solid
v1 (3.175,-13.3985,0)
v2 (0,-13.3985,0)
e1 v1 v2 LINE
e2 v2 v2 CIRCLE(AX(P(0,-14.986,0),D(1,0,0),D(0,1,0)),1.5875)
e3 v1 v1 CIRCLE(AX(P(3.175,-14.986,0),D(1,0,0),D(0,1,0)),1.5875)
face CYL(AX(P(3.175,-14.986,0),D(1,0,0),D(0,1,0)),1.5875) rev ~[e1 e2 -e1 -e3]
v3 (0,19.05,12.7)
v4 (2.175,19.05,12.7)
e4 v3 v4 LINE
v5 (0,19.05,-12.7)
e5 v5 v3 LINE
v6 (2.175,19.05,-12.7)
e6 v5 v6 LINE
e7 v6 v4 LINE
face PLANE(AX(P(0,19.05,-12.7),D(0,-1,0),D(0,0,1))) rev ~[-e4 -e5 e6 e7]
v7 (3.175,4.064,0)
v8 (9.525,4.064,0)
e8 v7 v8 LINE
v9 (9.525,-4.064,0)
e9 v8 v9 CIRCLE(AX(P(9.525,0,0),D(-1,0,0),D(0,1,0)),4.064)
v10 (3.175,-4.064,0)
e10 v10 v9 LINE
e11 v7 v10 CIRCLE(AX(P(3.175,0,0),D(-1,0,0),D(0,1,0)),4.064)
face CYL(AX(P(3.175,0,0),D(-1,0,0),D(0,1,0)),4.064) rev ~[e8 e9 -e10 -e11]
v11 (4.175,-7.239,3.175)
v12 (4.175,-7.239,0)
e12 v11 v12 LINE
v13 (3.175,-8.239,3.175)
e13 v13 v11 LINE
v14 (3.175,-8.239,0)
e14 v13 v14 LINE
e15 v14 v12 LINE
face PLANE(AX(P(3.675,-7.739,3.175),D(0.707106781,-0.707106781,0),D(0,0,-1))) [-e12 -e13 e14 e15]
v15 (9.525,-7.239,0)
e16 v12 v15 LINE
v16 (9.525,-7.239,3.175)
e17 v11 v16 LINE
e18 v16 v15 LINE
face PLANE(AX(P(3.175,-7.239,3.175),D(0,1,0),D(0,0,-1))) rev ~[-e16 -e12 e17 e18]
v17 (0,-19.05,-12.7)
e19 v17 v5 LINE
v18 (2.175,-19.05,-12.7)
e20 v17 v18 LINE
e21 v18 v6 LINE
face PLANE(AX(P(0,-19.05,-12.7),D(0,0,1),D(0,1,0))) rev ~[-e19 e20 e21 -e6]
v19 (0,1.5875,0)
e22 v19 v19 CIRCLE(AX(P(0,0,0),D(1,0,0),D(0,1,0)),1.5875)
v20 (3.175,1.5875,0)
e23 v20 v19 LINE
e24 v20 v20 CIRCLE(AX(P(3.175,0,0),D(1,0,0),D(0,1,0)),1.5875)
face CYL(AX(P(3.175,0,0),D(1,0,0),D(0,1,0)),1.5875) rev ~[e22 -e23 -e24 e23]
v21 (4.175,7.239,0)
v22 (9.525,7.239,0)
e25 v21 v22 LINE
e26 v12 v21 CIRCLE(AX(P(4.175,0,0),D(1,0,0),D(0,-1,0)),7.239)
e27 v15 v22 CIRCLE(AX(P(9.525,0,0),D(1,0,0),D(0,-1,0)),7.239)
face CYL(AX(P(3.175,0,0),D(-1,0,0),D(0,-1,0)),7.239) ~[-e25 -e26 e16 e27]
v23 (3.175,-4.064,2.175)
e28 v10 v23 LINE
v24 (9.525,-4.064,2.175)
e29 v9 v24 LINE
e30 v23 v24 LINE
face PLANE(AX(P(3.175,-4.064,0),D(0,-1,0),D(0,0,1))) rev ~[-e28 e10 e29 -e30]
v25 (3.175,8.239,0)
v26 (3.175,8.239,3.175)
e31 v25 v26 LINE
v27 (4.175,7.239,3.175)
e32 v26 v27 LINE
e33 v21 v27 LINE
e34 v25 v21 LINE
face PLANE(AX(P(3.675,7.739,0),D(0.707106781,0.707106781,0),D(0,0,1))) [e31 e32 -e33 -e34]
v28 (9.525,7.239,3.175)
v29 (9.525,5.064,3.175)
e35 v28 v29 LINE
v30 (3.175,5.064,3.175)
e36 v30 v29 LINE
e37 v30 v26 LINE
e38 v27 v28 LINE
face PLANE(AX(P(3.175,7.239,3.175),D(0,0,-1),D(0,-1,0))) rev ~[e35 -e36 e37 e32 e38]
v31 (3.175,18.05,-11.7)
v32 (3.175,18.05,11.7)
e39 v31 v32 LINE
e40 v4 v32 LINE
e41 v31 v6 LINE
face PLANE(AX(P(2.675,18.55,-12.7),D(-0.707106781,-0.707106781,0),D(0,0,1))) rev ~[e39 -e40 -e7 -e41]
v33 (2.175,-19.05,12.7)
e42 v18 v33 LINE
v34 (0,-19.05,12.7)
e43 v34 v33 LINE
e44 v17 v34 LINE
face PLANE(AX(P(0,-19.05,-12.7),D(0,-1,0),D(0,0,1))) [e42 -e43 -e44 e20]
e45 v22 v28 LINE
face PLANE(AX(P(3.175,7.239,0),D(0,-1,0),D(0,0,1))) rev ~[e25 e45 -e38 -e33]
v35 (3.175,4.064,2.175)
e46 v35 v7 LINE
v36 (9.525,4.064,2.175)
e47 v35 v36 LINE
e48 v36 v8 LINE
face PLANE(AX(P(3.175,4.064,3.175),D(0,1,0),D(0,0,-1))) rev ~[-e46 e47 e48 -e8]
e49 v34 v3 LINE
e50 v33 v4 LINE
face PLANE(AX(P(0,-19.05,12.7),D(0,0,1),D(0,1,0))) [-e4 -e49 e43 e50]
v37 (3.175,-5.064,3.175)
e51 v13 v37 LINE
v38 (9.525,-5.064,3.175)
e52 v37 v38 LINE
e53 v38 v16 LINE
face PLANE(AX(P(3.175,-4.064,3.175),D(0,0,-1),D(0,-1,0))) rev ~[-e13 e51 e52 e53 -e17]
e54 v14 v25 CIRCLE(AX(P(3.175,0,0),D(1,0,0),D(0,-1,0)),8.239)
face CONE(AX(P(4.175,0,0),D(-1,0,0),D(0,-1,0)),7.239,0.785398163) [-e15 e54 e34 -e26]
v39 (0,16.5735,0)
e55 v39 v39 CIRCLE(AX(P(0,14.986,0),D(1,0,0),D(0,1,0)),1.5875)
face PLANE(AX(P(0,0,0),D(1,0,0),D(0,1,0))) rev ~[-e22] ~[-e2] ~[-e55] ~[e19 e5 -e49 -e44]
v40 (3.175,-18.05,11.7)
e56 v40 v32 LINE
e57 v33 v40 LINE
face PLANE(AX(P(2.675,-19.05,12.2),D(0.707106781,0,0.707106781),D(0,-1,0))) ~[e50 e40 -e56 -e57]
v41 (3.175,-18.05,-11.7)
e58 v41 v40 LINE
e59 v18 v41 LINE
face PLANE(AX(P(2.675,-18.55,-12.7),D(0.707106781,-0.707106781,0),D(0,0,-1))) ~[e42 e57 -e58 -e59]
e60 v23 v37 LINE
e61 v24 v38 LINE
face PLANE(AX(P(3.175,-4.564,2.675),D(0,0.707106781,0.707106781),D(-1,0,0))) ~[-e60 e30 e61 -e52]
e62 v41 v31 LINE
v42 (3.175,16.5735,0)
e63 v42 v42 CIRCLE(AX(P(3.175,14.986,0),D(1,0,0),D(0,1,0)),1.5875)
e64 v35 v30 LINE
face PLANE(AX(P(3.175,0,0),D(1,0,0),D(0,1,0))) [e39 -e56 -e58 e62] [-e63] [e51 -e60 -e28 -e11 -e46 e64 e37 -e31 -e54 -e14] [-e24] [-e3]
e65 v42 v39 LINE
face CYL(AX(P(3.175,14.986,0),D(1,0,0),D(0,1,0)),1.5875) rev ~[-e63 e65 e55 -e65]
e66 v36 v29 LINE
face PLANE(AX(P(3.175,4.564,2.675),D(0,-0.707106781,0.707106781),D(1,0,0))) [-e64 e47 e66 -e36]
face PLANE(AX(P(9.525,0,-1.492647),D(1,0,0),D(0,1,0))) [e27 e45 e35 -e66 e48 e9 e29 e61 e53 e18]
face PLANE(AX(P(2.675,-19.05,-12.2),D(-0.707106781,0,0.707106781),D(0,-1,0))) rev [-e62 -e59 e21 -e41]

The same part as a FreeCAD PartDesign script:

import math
import FreeCAD as App
import Part
import Sketcher
Q = App.Units.Quantity


def edges_at(feature, points):
    """Names of the edges that pass closest to the given points."""
    edges = feature.Shape.Edges
    near = lambda p: min(range(len(edges)), key=lambda i: edges[i].distToShape(Part.Vertex(*p))[0])
    return sorted({f"Edge{near(p) + 1}" for p in points})


def add_polygon(sketch, points):
    """Adds a closed chain of lines whose ends are joined by coincident constraints."""
    first, n = sketch.GeometryCount, len(points)
    for a, b in zip(points, points[1:] + points[:1]):
        sketch.addGeometry(Part.LineSegment(App.Vector(*a, 0), App.Vector(*b, 0)), False)
    for i in range(n):
        sketch.addConstraint(Sketcher.Constraint("Coincident", first + i, 2, first + (i + 1) % n, 1))

doc = App.newDocument("Part")
params = doc.addObject("Spreadsheet::Sheet", "Params")
for row, (alias, value) in enumerate([
    ("sketch1_height", "1 in"),
    ("sketch1_width", "1.5 in"),
    ("pad1_length", "0.125 in"),
    ("sketch2_radius", "0.16 in"),
    ("sketch2_radius2", "0.285 in"),
    ("pad2_length", "0.25 in"),
    ("sketch3_diameter", "0.125 in"),
    ("chamfer_size", "1 mm"),
], start=1):
    params.set(f"A{row}", alias)
    params.set(f"B{row}", "=" + value)
    params.setAlias(f"B{row}", alias)

body = doc.addObject("PartDesign::Body", "Body")

# Sketch on YZ plane
sketch1 = doc.addObject("Sketcher::SketchObject", "Sketch")
body.addObject(sketch1)
sketch1.AttachmentSupport = (doc.YZ_Plane, [""])
sketch1.MapMode = "FlatFace"
add_polygon(sketch1, [(-19, 13), (-19, -13), (19, -13), (19, 13)])  # lines 0-3
sketch1.addConstraint([
    Sketcher.Constraint("Vertical", 0),
    Sketcher.Constraint("Horizontal", 1),
    Sketcher.Constraint("Vertical", 2),
    Sketcher.Constraint("Horizontal", 3),
    Sketcher.Constraint("Symmetric", 0, 2, 2, 2, -1, 1),
    Sketcher.Constraint("DistanceY", 0, 2, 0, 1, Q("1 in")),
    Sketcher.Constraint("DistanceX", 1, 1, 1, 2, Q("1.5 in")),
])
sketch1.setExpression("Constraints[9]", "Params.sketch1_height")
sketch1.setExpression("Constraints[10]", "Params.sketch1_width")
pad1 = doc.addObject("PartDesign::Pad", "Pad")
body.addObject(pad1)
pad1.Profile = sketch1
pad1.setExpression("Length", "Params.pad1_length")

# Sketch on YZ plane
sketch2 = doc.addObject("Sketcher::SketchObject", "Sketch001")
body.addObject(sketch2)
sketch2.AttachmentSupport = (doc.YZ_Plane, [""])
sketch2.MapMode = "FlatFace"
sketch2.AttachmentOffset = App.Placement(App.Vector(0, 0, 0.125 * 25.4), App.Rotation())
sketch2.addGeometry([
    Part.ArcOfCircle(Part.Circle(App.Vector(0, 0, 0), App.Vector(0, 0, 1), 4.1), math.radians(180), math.radians(360)),  # 0
    Part.LineSegment(App.Vector(-4.1, 0, 0), App.Vector(-4.1, 3.2, 0)),  # 1
    Part.LineSegment(App.Vector(-4.1, 3.2, 0), App.Vector(-7.2, 3.2, 0)),  # 2
    Part.LineSegment(App.Vector(-7.2, 3.2, 0), App.Vector(-7.2, 0, 0)),  # 3
    Part.ArcOfCircle(Part.Circle(App.Vector(0, 0, 0), App.Vector(0, 0, 1), 7.2), math.radians(180), math.radians(360)),  # 4
    Part.LineSegment(App.Vector(7.2, 0, 0), App.Vector(7.2, 3.2, 0)),  # 5
    Part.LineSegment(App.Vector(7.2, 3.2, 0), App.Vector(4.1, 3.2, 0)),  # 6
    Part.LineSegment(App.Vector(4.1, 3.2, 0), App.Vector(4.1, 0, 0)),  # 7
], False)
sketch2.addConstraint([
    Sketcher.Constraint("Tangent", 0, 1, 1, 1),
    Sketcher.Constraint("Coincident", 1, 2, 2, 1),
    Sketcher.Constraint("Coincident", 2, 2, 3, 1),
    Sketcher.Constraint("Tangent", 3, 2, 4, 1),
    Sketcher.Constraint("Tangent", 4, 2, 5, 1),
    Sketcher.Constraint("Coincident", 5, 2, 6, 1),
    Sketcher.Constraint("Coincident", 6, 2, 7, 1),
    Sketcher.Constraint("Tangent", 7, 2, 0, 2),
    Sketcher.Constraint("Vertical", 1),
    Sketcher.Constraint("Horizontal", 2),
    Sketcher.Constraint("Vertical", 3),
    Sketcher.Constraint("Vertical", 5),
    Sketcher.Constraint("Horizontal", 6),
    Sketcher.Constraint("Vertical", 7),
    Sketcher.Constraint("Coincident", 0, 3, -1, 1),
    Sketcher.Constraint("Coincident", 4, 3, -1, 1),
    Sketcher.Constraint("Horizontal", 2, 2, 5, 2),
    Sketcher.Constraint("Equal", 6, 1),
    Sketcher.Constraint("Radius", 0, Q("0.16 in")),
    Sketcher.Constraint("Radius", 4, Q("0.285 in")),
])
sketch2.setExpression("Constraints[18]", "Params.sketch2_radius")
sketch2.setExpression("Constraints[19]", "Params.sketch2_radius2")
pad2 = doc.addObject("PartDesign::Pad", "Pad001")
body.addObject(pad2)
pad2.Profile = sketch2
pad2.setExpression("Length", "Params.pad2_length")

# Sketch on YZ plane
sketch3 = doc.addObject("Sketcher::SketchObject", "Sketch002")
body.addObject(sketch3)
sketch3.AttachmentSupport = (doc.YZ_Plane, [""])
sketch3.MapMode = "FlatFace"
sketch3.AttachmentOffset = App.Placement(App.Vector(0, 0, 0.125 * 25.4), App.Rotation())
sketch3.addGeometry([
    Part.Circle(App.Vector(-15, 0, 0), App.Vector(0, 0, 1), 1.6),
    Part.Circle(App.Vector(15, 0, 0), App.Vector(0, 0, 1), 1.6),
    Part.Circle(App.Vector(0, 0, 0), App.Vector(0, 0, 1), 1.6),
], False)
sketch3.addConstraint([
    Sketcher.Constraint("Coincident", 2, 3, -1, 1),
    Sketcher.Constraint("Equal", 0, 1),
    Sketcher.Constraint("Equal", 1, 2),
    Sketcher.Constraint("Symmetric", 0, 3, 1, 3, -1, 1),
    Sketcher.Constraint("PointOnObject", 0, 3, -1),
    Sketcher.Constraint("Diameter", 0, Q("0.125 in")),
    Sketcher.Constraint("DistanceX", 0, 3, -1, 1, Q("0.59 in")),
])
sketch3.setExpression("Constraints[5]", "Params.sketch3_diameter")
pocket1 = doc.addObject("PartDesign::Pocket", "Pocket")
body.addObject(pocket1)
pocket1.Profile = sketch3
pocket1.Type = "ThroughAll"
doc.recompute()

chamfer = doc.addObject("PartDesign::Chamfer", "Chamfer")
body.addObject(chamfer)
chamfer.Base = (pocket1, edges_at(pocket1, [
    (6.35, -4.064, 3.175),
    (6.35, 4.064, 3.175),
    (3.175, -19.05, 0),
    (3.175, 0, 12.7),
    (3.175, 19.05, 0),
    (3.175, 0, -12.7),
    (3.175, 0, -7.239),
    (3.175, -7.239, 1.587),
    (3.175, 7.239, 1.587),
]))
chamfer.setExpression("Size", "Params.chamfer_size")

doc.recompute()
